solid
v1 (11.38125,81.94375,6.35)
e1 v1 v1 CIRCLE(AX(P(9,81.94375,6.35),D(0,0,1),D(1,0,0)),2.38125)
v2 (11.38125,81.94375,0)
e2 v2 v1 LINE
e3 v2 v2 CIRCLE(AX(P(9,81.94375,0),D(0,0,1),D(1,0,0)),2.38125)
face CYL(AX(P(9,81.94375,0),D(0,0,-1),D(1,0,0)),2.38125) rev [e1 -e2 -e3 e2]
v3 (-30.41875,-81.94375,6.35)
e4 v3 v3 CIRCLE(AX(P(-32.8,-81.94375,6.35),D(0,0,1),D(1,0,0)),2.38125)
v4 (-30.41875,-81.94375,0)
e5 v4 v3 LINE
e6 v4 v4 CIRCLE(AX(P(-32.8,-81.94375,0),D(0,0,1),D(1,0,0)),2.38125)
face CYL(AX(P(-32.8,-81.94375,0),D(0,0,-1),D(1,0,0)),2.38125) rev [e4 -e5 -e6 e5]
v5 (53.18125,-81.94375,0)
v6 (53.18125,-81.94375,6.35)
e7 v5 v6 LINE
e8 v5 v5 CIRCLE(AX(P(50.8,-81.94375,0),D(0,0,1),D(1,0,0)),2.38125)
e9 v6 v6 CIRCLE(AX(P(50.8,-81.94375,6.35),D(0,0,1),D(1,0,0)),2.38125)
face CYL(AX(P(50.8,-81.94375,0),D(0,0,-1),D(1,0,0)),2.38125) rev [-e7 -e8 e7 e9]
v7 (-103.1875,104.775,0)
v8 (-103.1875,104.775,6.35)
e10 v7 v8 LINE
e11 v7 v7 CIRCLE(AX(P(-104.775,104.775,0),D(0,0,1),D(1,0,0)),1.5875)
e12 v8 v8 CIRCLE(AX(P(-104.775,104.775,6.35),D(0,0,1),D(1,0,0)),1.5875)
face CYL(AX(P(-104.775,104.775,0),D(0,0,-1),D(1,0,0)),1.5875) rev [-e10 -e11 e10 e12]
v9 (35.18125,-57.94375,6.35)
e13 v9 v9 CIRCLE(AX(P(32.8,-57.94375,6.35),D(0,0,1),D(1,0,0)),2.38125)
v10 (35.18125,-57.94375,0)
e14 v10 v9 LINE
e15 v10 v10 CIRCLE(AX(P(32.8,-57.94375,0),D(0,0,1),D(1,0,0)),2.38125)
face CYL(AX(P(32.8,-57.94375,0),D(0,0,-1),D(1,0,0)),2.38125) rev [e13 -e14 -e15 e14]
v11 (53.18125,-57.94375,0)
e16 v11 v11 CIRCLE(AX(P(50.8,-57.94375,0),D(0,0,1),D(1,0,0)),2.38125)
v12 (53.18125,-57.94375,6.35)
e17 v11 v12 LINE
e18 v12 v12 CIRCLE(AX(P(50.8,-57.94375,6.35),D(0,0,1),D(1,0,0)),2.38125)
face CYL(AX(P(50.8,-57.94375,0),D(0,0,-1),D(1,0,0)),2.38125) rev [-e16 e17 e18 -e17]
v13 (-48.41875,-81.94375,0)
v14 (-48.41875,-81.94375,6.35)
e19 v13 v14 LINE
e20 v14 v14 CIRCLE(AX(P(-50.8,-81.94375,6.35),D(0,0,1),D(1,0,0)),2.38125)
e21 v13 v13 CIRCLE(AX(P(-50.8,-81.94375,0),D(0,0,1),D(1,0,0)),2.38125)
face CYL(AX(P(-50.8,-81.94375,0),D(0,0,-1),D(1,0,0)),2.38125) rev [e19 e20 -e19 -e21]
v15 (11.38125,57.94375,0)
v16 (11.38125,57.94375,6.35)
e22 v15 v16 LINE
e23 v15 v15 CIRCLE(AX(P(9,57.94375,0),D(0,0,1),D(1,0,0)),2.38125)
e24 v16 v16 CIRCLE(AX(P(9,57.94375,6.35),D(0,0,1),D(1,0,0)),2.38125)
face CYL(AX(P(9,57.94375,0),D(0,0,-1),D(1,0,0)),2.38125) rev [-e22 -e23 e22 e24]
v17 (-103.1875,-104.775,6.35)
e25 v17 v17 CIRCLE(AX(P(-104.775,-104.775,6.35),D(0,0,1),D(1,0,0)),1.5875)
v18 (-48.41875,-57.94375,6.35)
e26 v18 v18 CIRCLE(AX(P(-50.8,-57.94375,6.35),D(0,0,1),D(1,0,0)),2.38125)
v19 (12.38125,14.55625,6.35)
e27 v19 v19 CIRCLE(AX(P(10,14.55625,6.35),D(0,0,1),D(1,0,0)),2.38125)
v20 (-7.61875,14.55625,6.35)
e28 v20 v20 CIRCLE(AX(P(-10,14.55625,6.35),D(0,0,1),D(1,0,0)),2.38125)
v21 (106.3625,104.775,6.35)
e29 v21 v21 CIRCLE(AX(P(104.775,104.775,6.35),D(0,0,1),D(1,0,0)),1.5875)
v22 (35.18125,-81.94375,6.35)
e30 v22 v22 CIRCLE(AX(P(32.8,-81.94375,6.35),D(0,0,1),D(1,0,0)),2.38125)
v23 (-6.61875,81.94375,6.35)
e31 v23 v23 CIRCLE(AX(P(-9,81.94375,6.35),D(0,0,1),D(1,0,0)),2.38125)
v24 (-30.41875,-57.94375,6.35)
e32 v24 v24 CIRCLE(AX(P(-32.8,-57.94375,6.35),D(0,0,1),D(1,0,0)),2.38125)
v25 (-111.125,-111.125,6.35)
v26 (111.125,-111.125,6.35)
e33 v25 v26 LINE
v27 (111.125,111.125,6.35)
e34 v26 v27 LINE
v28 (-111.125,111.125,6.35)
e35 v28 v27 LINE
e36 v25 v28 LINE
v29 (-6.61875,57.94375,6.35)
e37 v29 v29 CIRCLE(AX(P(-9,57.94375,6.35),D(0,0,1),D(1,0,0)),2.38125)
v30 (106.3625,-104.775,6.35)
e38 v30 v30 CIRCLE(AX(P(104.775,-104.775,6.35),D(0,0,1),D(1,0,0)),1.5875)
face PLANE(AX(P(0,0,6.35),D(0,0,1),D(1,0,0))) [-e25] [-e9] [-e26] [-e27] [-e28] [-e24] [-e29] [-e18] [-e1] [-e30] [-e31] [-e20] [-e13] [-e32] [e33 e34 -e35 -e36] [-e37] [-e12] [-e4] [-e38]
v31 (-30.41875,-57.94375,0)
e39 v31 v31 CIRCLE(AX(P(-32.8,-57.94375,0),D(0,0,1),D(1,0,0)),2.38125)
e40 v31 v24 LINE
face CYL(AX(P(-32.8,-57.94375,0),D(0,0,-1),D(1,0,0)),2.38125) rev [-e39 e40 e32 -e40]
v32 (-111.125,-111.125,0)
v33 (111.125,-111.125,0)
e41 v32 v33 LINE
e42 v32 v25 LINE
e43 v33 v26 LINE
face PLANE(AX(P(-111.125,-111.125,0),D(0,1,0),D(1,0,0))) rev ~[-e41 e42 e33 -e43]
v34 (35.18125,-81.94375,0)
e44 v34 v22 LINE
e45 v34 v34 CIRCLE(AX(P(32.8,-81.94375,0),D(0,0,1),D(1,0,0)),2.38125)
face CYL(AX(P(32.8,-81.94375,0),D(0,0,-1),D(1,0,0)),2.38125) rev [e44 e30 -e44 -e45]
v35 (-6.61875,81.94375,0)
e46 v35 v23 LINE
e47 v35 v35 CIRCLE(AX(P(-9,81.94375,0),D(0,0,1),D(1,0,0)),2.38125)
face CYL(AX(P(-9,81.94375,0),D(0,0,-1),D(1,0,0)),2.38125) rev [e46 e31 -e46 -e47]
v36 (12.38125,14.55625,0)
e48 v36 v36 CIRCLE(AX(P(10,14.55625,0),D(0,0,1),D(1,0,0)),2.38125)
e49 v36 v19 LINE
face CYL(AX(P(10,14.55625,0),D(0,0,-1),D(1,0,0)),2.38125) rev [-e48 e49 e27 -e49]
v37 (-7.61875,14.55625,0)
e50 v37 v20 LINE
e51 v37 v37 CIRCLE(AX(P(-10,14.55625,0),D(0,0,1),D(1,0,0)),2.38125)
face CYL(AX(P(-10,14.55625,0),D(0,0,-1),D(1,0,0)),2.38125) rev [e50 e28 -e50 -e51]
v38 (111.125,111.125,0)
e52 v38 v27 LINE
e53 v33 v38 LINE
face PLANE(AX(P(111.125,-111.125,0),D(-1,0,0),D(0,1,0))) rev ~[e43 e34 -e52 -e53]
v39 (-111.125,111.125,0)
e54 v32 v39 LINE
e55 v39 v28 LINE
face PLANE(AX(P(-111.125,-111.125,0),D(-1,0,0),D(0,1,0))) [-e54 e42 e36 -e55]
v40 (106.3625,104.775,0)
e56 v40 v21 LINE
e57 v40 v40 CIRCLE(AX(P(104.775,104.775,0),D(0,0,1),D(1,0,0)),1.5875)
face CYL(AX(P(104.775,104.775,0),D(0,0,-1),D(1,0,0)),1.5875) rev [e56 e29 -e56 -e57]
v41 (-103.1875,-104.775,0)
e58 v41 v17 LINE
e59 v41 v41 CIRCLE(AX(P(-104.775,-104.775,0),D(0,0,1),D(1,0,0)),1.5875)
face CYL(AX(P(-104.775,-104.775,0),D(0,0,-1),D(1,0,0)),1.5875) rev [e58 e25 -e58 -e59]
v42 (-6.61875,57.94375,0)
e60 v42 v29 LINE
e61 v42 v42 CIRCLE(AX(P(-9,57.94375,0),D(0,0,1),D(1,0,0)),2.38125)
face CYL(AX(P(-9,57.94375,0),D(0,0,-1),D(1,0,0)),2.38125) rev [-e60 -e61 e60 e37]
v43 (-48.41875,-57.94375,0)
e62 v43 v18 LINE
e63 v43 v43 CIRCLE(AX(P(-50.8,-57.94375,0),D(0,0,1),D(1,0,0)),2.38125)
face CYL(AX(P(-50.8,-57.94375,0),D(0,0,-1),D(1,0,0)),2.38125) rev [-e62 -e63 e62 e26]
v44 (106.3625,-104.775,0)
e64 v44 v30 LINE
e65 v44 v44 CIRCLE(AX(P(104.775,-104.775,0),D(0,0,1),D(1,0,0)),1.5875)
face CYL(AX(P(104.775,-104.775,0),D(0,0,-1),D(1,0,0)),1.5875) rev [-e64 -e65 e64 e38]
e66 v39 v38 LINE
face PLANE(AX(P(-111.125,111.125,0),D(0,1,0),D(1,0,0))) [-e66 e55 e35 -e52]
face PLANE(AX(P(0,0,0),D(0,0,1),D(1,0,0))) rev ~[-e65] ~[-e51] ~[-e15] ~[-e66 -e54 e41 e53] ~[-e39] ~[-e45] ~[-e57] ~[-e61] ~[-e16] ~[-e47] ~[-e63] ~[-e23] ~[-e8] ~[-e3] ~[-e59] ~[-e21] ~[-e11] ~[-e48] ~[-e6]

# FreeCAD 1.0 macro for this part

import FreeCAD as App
import Part
import Sketcher
Q = App.Units.Quantity

doc = App.newDocument("Part")
body = doc.addObject("PartDesign::Body", "Body")

sketch1 = body.newObject("Sketcher::SketchObject", "Sketch")
sketch1.AttachmentSupport = (doc.getObject("XY_Plane"), [""])
sketch1.MapMode = "FlatFace"
sketch1.addGeometry([
    Part.LineSegment(App.Vector(-111.125, 111.125, 0), App.Vector(-111.125, -111.125, 0)),
    Part.LineSegment(App.Vector(-111.125, -111.125, 0), App.Vector(111.125, -111.125, 0)),
    Part.LineSegment(App.Vector(111.125, -111.125, 0), App.Vector(111.125, 111.125, 0)),
    Part.LineSegment(App.Vector(111.125, 111.125, 0), App.Vector(-111.125, 111.125, 0)),
    Part.Circle(App.Vector(-104.775, -104.775, 0), App.Vector(0, 0, 1), 1.5875),
    Part.Circle(App.Vector(-50.8, -81.94375, 0), App.Vector(0, 0, 1), 2.38125),
    Part.Circle(App.Vector(-32.8, -81.94375, 0), App.Vector(0, 0, 1), 2.38125),
    Part.Circle(App.Vector(-50.8, -57.94375, 0), App.Vector(0, 0, 1), 2.38125),
    Part.Circle(App.Vector(-32.8, -57.94375, 0), App.Vector(0, 0, 1), 2.38125),
    Part.Circle(App.Vector(32.8, -81.94375, 0), App.Vector(0, 0, 1), 2.38125),
    Part.Circle(App.Vector(50.8, -81.94375, 0), App.Vector(0, 0, 1), 2.38125),
    Part.Circle(App.Vector(32.8, -57.94375, 0), App.Vector(0, 0, 1), 2.38125),
    Part.Circle(App.Vector(50.8, -57.94375, 0), App.Vector(0, 0, 1), 2.38125),
    Part.Circle(App.Vector(104.775, -104.775, 0), App.Vector(0, 0, 1), 1.5875),
    Part.Circle(App.Vector(-10, 14.55625, 0), App.Vector(0, 0, 1), 2.38125),
    Part.Circle(App.Vector(-104.775, 104.775, 0), App.Vector(0, 0, 1), 1.5875),
    Part.Circle(App.Vector(-9, 57.94375, 0), App.Vector(0, 0, 1), 2.38125),
    Part.Circle(App.Vector(-9, 81.94375, 0), App.Vector(0, 0, 1), 2.38125),
    Part.Circle(App.Vector(10, 14.55625, 0), App.Vector(0, 0, 1), 2.38125),
    Part.Circle(App.Vector(9, 57.94375, 0), App.Vector(0, 0, 1), 2.38125),
    Part.Circle(App.Vector(9, 81.94375, 0), App.Vector(0, 0, 1), 2.38125),
    Part.Circle(App.Vector(104.775, 104.775, 0), App.Vector(0, 0, 1), 1.5875),
], False)
sketch1.addConstraint([
    Sketcher.Constraint("Coincident", 0, 2, 1, 1),
    Sketcher.Constraint("Coincident", 1, 2, 2, 1),
    Sketcher.Constraint("Coincident", 2, 2, 3, 1),
    Sketcher.Constraint("Coincident", 3, 2, 0, 1),
    Sketcher.Constraint("Vertical", 0),
    Sketcher.Constraint("Horizontal", 1),
    Sketcher.Constraint("Vertical", 2),
    Sketcher.Constraint("Horizontal", 3),
    Sketcher.Constraint("Equal", 5, 6),
    Sketcher.Constraint("Equal", 6, 7),
    Sketcher.Constraint("Equal", 7, 8),
    Sketcher.Constraint("Equal", 8, 9),
    Sketcher.Constraint("Equal", 9, 10),
    Sketcher.Constraint("Equal", 10, 11),
    Sketcher.Constraint("Equal", 11, 12),
    Sketcher.Constraint("Equal", 4, 13),
    Sketcher.Constraint("Equal", 12, 14),
    Sketcher.Constraint("Equal", 13, 15),
    Sketcher.Constraint("Equal", 14, 16),
    Sketcher.Constraint("Equal", 16, 17),
    Sketcher.Constraint("Equal", 17, 18),
    Sketcher.Constraint("Equal", 18, 19),
    Sketcher.Constraint("Equal", 19, 20),
    Sketcher.Constraint("Equal", 15, 21),
    Sketcher.Constraint("Symmetric", 13, 3, 15, 3, -1, 1),
    Sketcher.Constraint("Symmetric", 4, 3, 21, 3, -1, 1),
    Sketcher.Constraint("Symmetric", 0, 2, 2, 2, -1, 1),
    Sketcher.Constraint("Symmetric", 6, 3, 9, 3, -2),
    Sketcher.Constraint("Symmetric", 5, 3, 10, 3, -2),
    Sketcher.Constraint("Symmetric", 8, 3, 11, 3, -2),
    Sketcher.Constraint("Symmetric", 7, 3, 12, 3, -2),
    Sketcher.Constraint("Symmetric", 4, 3, 13, 3, -2),
    Sketcher.Constraint("Symmetric", 14, 3, 18, 3, -2),
    Sketcher.Constraint("Symmetric", 16, 3, 19, 3, -2),
    Sketcher.Constraint("Symmetric", 17, 3, 20, 3, -2),
    Sketcher.Constraint("Horizontal", 5, 3, 6, 3),
    Sketcher.Constraint("Horizontal", 7, 3, 8, 3),
    Sketcher.Constraint("Vertical", 5, 3, 7, 3),
    Sketcher.Constraint("Vertical", 6, 3, 8, 3),
    Sketcher.Constraint("Vertical", 16, 3, 17, 3),
    Sketcher.Constraint("Equal", 3, 0),
    Sketcher.Constraint("Diameter", 4, Q("0.125 in")),
    Sketcher.Constraint("Diameter", 5, Q("0.1875 in")),
    Sketcher.Constraint("DistanceX", 5, 3, -1, 1, Q("2 in")),
    Sketcher.Constraint("DistanceX", 1, 1, 1, 2, Q("8.75 in")),
    Sketcher.Constraint("DistanceX", 0, 2, 4, 3, Q("0.25 in")),
    Sketcher.Constraint("DistanceY", 0, 2, 4, 3, Q("0.25 in")),
    Sketcher.Constraint("DistanceY", 7, 3, -1, 1, Q("2.28125 in")),
    Sketcher.Constraint("DistanceY", -1, 1, 16, 3, Q("2.28125 in")),
    Sketcher.Constraint("DistanceX", 6, 3, -1, 1, 32.8),
    Sketcher.Constraint("DistanceX", 14, 3, -1, 1, 10.0),
    Sketcher.Constraint("DistanceX", 16, 3, -1, 1, 9.0),
    Sketcher.Constraint("DistanceY", 5, 3, 7, 3, 24.0),
    Sketcher.Constraint("DistanceY", 8, 3, 14, 3, 72.5),
    Sketcher.Constraint("DistanceY", 16, 3, 17, 3, 24.0),
])
pad1 = body.newObject("PartDesign::Pad", "Pad")
pad1.Profile = sketch1
pad1.Length = Q("0.25 in")

doc.recompute()
